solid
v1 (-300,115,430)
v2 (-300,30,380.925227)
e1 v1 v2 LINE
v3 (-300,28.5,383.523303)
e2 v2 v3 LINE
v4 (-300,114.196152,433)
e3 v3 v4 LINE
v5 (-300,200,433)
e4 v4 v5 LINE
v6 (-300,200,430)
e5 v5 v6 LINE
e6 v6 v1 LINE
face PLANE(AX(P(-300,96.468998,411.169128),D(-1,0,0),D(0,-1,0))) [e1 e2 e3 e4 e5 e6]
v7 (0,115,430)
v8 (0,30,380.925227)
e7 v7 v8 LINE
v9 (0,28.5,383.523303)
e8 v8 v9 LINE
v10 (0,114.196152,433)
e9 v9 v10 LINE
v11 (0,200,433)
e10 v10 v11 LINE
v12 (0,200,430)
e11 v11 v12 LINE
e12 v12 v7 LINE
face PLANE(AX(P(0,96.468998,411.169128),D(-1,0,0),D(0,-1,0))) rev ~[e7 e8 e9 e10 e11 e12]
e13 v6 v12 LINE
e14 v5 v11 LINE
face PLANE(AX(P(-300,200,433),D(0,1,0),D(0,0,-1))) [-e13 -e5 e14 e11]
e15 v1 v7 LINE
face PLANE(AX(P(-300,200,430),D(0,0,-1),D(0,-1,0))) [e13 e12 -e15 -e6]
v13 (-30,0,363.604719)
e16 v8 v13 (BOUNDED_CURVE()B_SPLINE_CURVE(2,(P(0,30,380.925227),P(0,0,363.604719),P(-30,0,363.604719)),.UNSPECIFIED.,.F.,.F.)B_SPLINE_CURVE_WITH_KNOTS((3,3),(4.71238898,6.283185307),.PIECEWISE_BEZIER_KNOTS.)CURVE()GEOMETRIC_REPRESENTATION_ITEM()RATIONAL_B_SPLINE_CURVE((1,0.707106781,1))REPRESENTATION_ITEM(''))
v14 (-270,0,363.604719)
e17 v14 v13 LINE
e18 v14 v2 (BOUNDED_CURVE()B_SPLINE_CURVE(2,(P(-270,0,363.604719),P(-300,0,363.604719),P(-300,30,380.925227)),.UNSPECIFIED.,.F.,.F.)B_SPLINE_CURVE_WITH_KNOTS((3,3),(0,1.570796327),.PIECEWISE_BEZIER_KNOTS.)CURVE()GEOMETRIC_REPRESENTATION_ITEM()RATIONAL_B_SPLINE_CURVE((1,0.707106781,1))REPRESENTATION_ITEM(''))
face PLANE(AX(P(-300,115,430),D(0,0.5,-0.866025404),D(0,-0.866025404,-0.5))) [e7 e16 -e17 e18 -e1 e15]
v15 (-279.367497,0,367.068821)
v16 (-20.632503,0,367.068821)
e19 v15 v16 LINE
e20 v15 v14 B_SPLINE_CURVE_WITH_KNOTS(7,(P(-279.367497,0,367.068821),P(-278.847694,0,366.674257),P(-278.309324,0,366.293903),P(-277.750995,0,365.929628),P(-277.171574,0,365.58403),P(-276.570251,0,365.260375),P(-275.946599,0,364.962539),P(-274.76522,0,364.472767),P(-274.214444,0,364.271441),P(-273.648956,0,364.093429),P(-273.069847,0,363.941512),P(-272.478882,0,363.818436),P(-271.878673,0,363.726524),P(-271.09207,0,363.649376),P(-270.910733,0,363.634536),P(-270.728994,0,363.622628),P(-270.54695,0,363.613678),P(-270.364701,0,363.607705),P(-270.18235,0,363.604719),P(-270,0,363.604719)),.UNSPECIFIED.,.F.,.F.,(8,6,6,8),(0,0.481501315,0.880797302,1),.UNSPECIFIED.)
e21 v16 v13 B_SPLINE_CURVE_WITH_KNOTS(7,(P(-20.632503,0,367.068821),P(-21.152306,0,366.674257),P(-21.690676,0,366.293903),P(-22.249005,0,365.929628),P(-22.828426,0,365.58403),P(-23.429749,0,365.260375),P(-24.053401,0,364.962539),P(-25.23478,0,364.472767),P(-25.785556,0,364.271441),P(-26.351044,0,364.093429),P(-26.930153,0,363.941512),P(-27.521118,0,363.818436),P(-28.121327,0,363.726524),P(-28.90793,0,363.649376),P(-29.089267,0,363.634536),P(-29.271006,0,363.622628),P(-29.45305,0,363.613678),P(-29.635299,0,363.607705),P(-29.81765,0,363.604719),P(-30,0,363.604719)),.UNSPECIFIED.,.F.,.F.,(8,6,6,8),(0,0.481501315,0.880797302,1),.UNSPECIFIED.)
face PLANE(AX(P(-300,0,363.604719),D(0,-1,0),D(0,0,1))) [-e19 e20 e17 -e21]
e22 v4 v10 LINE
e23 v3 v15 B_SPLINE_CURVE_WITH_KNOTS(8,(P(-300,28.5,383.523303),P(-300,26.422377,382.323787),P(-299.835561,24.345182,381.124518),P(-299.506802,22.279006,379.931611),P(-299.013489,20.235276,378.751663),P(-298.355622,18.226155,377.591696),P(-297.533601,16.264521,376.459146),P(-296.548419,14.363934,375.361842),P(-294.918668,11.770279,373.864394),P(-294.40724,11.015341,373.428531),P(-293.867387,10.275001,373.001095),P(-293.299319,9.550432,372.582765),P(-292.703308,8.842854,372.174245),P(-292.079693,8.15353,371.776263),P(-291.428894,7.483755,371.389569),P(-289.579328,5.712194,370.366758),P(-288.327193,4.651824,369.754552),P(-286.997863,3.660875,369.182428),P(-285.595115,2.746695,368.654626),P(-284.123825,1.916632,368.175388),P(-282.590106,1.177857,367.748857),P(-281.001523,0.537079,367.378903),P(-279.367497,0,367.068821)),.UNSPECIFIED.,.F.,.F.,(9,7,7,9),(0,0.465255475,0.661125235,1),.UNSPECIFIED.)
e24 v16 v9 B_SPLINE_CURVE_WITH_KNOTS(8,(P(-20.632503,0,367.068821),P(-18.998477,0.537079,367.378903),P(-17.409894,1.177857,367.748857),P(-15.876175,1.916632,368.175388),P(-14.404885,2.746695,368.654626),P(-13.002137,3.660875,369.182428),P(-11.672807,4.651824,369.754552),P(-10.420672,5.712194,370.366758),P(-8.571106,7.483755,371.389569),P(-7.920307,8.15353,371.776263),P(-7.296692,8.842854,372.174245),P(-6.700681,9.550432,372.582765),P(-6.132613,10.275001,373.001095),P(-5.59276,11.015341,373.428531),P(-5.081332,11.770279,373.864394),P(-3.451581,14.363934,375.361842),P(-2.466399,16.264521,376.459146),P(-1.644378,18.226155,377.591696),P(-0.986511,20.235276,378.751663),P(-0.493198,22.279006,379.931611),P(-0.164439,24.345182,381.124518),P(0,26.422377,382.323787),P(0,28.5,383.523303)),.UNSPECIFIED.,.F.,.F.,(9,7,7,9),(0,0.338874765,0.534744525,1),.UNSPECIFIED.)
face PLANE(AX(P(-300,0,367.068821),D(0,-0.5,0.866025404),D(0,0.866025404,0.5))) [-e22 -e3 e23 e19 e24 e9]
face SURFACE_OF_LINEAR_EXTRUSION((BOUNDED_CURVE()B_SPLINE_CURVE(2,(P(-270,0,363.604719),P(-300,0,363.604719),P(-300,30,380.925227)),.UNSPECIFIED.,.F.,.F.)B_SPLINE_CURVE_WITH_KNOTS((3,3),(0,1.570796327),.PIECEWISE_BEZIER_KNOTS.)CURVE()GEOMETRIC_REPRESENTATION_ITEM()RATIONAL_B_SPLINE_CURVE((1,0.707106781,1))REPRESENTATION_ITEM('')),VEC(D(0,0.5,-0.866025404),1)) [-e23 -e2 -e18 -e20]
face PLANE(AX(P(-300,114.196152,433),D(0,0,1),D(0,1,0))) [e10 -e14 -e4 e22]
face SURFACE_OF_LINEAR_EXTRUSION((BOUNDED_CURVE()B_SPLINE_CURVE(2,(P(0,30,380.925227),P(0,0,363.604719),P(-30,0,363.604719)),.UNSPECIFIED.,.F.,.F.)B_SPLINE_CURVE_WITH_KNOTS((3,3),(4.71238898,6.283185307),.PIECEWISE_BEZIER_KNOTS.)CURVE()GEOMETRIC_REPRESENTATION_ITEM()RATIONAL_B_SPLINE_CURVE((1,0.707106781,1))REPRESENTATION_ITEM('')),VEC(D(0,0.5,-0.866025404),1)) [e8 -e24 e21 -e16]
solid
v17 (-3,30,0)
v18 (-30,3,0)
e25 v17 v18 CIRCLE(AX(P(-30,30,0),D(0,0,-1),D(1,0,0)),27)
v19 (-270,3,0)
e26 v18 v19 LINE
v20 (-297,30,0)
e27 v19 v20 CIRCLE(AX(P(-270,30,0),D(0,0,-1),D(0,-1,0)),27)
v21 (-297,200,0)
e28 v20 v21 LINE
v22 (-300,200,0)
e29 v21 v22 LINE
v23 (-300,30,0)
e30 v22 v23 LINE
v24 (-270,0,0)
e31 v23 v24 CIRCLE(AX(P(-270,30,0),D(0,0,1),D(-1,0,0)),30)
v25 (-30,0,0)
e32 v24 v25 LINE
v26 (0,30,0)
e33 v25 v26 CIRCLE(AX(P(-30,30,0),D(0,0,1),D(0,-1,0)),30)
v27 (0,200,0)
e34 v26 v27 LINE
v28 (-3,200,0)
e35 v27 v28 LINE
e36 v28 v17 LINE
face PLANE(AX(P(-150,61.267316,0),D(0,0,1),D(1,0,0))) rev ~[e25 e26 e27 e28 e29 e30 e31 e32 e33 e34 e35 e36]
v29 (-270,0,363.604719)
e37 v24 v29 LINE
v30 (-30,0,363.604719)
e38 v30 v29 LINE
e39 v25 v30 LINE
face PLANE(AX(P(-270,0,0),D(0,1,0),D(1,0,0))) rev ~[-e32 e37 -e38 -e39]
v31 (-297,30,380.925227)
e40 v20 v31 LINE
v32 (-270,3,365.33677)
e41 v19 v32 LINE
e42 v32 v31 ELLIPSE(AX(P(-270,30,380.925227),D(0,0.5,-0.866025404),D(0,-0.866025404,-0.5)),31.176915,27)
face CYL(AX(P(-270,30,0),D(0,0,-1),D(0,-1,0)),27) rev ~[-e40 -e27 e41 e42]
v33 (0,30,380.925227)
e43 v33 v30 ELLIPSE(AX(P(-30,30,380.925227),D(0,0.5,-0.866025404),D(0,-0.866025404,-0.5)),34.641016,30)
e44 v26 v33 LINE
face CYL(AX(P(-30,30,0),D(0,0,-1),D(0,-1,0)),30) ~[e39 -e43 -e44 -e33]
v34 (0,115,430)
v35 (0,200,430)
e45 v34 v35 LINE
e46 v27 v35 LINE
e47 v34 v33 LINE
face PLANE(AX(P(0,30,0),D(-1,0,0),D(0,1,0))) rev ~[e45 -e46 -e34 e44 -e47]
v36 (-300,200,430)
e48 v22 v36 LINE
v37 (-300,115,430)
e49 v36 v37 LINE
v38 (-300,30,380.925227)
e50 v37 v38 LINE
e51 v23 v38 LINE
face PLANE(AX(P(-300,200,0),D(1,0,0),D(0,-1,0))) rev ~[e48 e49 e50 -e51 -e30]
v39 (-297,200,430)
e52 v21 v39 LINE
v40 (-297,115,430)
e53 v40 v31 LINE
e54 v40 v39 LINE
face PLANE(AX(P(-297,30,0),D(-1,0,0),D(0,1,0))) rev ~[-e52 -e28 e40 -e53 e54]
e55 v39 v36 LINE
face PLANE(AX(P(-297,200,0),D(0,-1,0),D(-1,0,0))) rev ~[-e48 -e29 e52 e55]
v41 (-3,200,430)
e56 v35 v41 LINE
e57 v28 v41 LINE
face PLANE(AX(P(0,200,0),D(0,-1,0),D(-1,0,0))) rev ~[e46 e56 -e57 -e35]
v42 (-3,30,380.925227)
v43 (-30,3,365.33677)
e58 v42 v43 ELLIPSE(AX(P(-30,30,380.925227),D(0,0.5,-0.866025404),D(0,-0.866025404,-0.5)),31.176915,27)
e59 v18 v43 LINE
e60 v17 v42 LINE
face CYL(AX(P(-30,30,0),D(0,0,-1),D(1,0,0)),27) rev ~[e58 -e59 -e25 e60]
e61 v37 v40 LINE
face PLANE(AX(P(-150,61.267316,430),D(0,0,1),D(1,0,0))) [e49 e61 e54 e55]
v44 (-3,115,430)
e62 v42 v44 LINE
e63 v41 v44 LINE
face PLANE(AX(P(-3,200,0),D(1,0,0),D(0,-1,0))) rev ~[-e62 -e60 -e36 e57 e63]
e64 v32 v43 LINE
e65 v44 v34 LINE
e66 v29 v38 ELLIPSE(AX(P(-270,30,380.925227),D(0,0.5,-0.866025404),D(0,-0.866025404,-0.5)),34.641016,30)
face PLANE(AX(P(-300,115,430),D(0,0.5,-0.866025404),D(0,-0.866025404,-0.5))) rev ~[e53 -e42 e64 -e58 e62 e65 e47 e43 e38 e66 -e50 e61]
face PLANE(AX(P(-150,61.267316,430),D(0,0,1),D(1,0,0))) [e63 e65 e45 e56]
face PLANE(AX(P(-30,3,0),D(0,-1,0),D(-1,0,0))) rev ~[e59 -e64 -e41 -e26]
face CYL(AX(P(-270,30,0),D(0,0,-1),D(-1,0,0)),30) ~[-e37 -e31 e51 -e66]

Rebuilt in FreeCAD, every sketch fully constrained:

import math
import FreeCAD as App
import Part
import Sketcher
from FreeCAD import Vector
Q = App.Units.Quantity


def add_polygon(sketch, points):
    """Adds a closed chain of lines whose ends are joined by coincident constraints."""
    first, n = sketch.GeometryCount, len(points)
    for a, b in zip(points, points[1:] + points[:1]):
        sketch.addGeometry(Part.LineSegment(App.Vector(*a, 0), App.Vector(*b, 0)), False)
    for i in range(n):
        sketch.addConstraint(Sketcher.Constraint("Coincident", first + i, 2, first + (i + 1) % n, 1))

doc = App.newDocument("Part")
params = doc.addObject("Spreadsheet::Sheet", "Params")
for row, (alias, value) in enumerate([
    ("sketch1_radius", "30 mm"),
    ("sketch1_radius2", "27 mm"),
    ("sketch1_width", "240 mm"),
    ("sketch1_height", "170 mm"),
    ("pad1_length", "430 mm"),
    ("pocket1_length", "455 mm"),
    ("sketch3_width", "85 mm"),
    ("sketch3_height", "3 mm"),
    ("pad2_length", "300 mm"),
    ("pocket2_length", "16 mm"),
], start=1):
    params.set(f"A{row}", alias)
    params.set(f"B{row}", "=" + value)
    params.setAlias(f"B{row}", alias)

body = doc.addObject("PartDesign::Body", "Body")

sketch1 = doc.addObject("Sketcher::SketchObject", "Sketch")
body.addObject(sketch1)
sketch1.AttachmentSupport = (doc.XY_Plane, [""])
sketch1.MapMode = "FlatFace"
sketch1.addGeometry([
    Part.LineSegment(Vector(-270, 0, 0), Vector(-30, 0, 0)),
    Part.ArcOfCircle(Part.Circle(Vector(-30, 30, 0), Vector(0, 0, 1), 30), math.radians(-90), math.radians(0)),
    Part.LineSegment(Vector(0, 30, 0), Vector(0, 200, 0)),
    Part.LineSegment(Vector(0, 200, 0), Vector(-3, 200, 0)),
    Part.LineSegment(Vector(-3, 200, 0), Vector(-3, 30, 0)),
    Part.ArcOfCircle(Part.Circle(Vector(-30, 30, 0), Vector(0, 0, 1), 27), math.radians(-90), math.radians(0)),
    Part.LineSegment(Vector(-30, 3, 0), Vector(-270, 3, 0)),
    Part.ArcOfCircle(Part.Circle(Vector(-270, 30, 0), Vector(0, 0, 1), 27), math.radians(180), math.radians(270)),
    Part.LineSegment(Vector(-297, 30, 0), Vector(-297, 200, 0)),
    Part.LineSegment(Vector(-297, 200, 0), Vector(-300, 200, 0)),
    Part.LineSegment(Vector(-300, 200, 0), Vector(-300, 30, 0)),
    Part.ArcOfCircle(Part.Circle(Vector(-270, 30, 0), Vector(0, 0, 1), 30), math.radians(180), math.radians(270)),
], False)
sketch1.addConstraint([
    Sketcher.Constraint("Tangent", 0, 2, 1, 1),
    Sketcher.Constraint("Tangent", 1, 2, 2, 1),
    Sketcher.Constraint("Coincident", 2, 2, 3, 1),
    Sketcher.Constraint("Coincident", 3, 2, 4, 1),
    Sketcher.Constraint("Tangent", 4, 2, 5, 2),
    Sketcher.Constraint("Tangent", 5, 1, 6, 1),
    Sketcher.Constraint("Tangent", 6, 2, 7, 2),
    Sketcher.Constraint("Tangent", 7, 1, 8, 1),
    Sketcher.Constraint("Coincident", 8, 2, 9, 1),
    Sketcher.Constraint("Coincident", 9, 2, 10, 1),
    Sketcher.Constraint("Tangent", 10, 2, 11, 1),
    Sketcher.Constraint("Tangent", 11, 2, 0, 1),
    Sketcher.Constraint("Horizontal", 0),
    Sketcher.Constraint("Vertical", 2),
    Sketcher.Constraint("Horizontal", 3),
    Sketcher.Constraint("Vertical", 4),
    Sketcher.Constraint("Horizontal", 6),
    Sketcher.Constraint("Vertical", 8),
    Sketcher.Constraint("Horizontal", 9),
    Sketcher.Constraint("Vertical", 10),
    Sketcher.Constraint("Coincident", 5, 3, 1, 3),
    Sketcher.Constraint("Coincident", 11, 3, 7, 3),
    Sketcher.Constraint("Equal", 5, 7),
    Sketcher.Constraint("PointOnObject", 0, 2, -1),
    Sketcher.Constraint("PointOnObject", 1, 2, -2),
    Sketcher.Constraint("Horizontal", 3, 2, 8, 2),
    Sketcher.Constraint("Radius", 1, Q("30 mm")),
    Sketcher.Constraint("Radius", 5, Q("27 mm")),
    Sketcher.Constraint("DistanceX", 0, 1, 0, 2, Q("240 mm")),
    Sketcher.Constraint("DistanceY", 2, 1, 2, 2, Q("170 mm")),
])
sketch1.setExpression("Constraints[26]", "Params.sketch1_radius")
sketch1.setExpression("Constraints[27]", "Params.sketch1_radius2")
sketch1.setExpression("Constraints[28]", "Params.sketch1_width")
sketch1.setExpression("Constraints[29]", "Params.sketch1_height")
pad1 = doc.addObject("PartDesign::Pad", "Pad")
body.addObject(pad1)
pad1.Profile = sketch1
pad1.setExpression("Length", "Params.pad1_length")

sketch2 = doc.addObject("Sketcher::SketchObject", "Sketch001")
body.addObject(sketch2)
sketch2.AttachmentSupport = (doc.YZ_Plane, [""])
sketch2.MapMode = "FlatFace"
sketch2.AttachmentOffset = App.Placement(Vector(0, 0, -300), App.Rotation())
add_polygon(sketch2, [(-119, 430), (115, 430), (-119, 295)])
sketch2.addConstraint([
    Sketcher.Constraint("Horizontal", 0),
    Sketcher.Constraint("Vertical", 2),
    Sketcher.Constraint("Angle", 1, Q("-150 deg")),
    Sketcher.Constraint("DistanceX", -1, 1, 0, 2, Q("115 mm")),
    Sketcher.Constraint("DistanceY", -1, 1, 0, 2, Q("430 mm")),
    Sketcher.Constraint("DistanceX", 0, 1, 0, 2, Q("233.693796 mm")),
])
pocket1 = doc.addObject("PartDesign::Pocket", "Pocket")
body.addObject(pocket1)
pocket1.Profile = sketch2
pocket1.setExpression("Length", "Params.pocket1_length")
pocket1.Reversed = True
body2 = doc.addObject("PartDesign::Body", "Body001")

sketch3 = doc.addObject("Sketcher::SketchObject", "Sketch002")
body2.addObject(sketch3)
sketch3.AttachmentSupport = (doc.getObject("YZ_Plane001"), [""])
sketch3.MapMode = "FlatFace"
sketch3.AttachmentOffset = App.Placement(Vector(0, 0, -300), App.Rotation())
add_polygon(sketch3, [(200, 430), (115, 430), (0, 363.6), (0, 367.1), (114.2, 433), (200, 433)])
sketch3.addConstraint([
    Sketcher.Constraint("Horizontal", 0),
    Sketcher.Constraint("Vertical", 2),
    Sketcher.Constraint("Horizontal", 4),
    Sketcher.Constraint("Vertical", 5),
    Sketcher.Constraint("PointOnObject", 1, 2, -2),
    Sketcher.Constraint("Parallel", 1, 3),
    Sketcher.Constraint("DistanceX", 0, 2, 0, 1, Q("85 mm")),
    Sketcher.Constraint("DistanceY", 5, 2, 5, 1, Q("3 mm")),
    Sketcher.Constraint("Angle", 1, Q("-150 deg")),
    Sketcher.Constraint("DistanceX", -1, 1, 0, 2, Q("115 mm")),
    Sketcher.Constraint("DistanceY", -1, 1, 0, 2, Q("430 mm")),
    Sketcher.Constraint("DistanceY", 2, 1, 2, 2, Q("3.464102 mm")),
])
sketch3.setExpression("Constraints[12]", "Params.sketch3_width")
sketch3.setExpression("Constraints[13]", "Params.sketch3_height")
pad2 = doc.addObject("PartDesign::Pad", "Pad001")
body2.addObject(pad2)
pad2.Profile = sketch3
pad2.setExpression("Length", "Params.pad2_length")

sketch4 = doc.addObject("Sketcher::SketchObject", "Sketch003")
body2.addObject(sketch4)
sketch4.Placement = App.Placement(Vector(0, -157.445462, 272.703539), App.Rotation(Vector(1, 0, 0), Vector(0, -0.866025404, -0.5), Vector(0, 0.5, -0.866025404), "ZXY"))
sketch4.addGeometry([
    Part.LineSegment(Vector(0, -181.80236, 0), Vector(-30, -181.80236, 0)),
    Part.BSplineCurve([Vector(0, -216.443376, 0), Vector(0, -181.80236, 0), Vector(-30, -181.80236, 0)], [3, 3], [4.71238898, 6.283185307], False, 2, [1, 0.707106781, 1], False),
    Part.LineSegment(Vector(0, -216.443376, 0), Vector(0, -181.80236, 0)),
    Part.BSplineCurve([Vector(-270, -181.80236, 0), Vector(-300, -181.80236, 0), Vector(-300, -216.443376, 0)], [3, 3], [0, 1.570796327], False, 2, [1, 0.707106781, 1], False),
    Part.LineSegment(Vector(-270, -181.80236, 0), Vector(-300, -181.80236, 0)),
    Part.LineSegment(Vector(-300, -181.80236, 0), Vector(-300, -216.443376, 0)),
], False)
sketch4.addConstraint([
    Sketcher.Constraint("Block", 1),
    Sketcher.Constraint("Block", 3),
    Sketcher.Constraint("Coincident", 0, 2, 1, 2),
    Sketcher.Constraint("Coincident", 1, 1, 2, 1),
    Sketcher.Constraint("Coincident", 2, 2, 0, 1),
    Sketcher.Constraint("Coincident", 3, 1, 4, 1),
    Sketcher.Constraint("Coincident", 4, 2, 5, 1),
    Sketcher.Constraint("Coincident", 5, 2, 3, 2),
    Sketcher.Constraint("Horizontal", 0),
    Sketcher.Constraint("Vertical", 2),
    Sketcher.Constraint("Horizontal", 4),
    Sketcher.Constraint("Vertical", 5),
])
pocket2 = doc.addObject("PartDesign::Pocket", "Pocket001")
body2.addObject(pocket2)
pocket2.Profile = sketch4
pocket2.setExpression("Length", "Params.pocket2_length")

doc.recompute()
